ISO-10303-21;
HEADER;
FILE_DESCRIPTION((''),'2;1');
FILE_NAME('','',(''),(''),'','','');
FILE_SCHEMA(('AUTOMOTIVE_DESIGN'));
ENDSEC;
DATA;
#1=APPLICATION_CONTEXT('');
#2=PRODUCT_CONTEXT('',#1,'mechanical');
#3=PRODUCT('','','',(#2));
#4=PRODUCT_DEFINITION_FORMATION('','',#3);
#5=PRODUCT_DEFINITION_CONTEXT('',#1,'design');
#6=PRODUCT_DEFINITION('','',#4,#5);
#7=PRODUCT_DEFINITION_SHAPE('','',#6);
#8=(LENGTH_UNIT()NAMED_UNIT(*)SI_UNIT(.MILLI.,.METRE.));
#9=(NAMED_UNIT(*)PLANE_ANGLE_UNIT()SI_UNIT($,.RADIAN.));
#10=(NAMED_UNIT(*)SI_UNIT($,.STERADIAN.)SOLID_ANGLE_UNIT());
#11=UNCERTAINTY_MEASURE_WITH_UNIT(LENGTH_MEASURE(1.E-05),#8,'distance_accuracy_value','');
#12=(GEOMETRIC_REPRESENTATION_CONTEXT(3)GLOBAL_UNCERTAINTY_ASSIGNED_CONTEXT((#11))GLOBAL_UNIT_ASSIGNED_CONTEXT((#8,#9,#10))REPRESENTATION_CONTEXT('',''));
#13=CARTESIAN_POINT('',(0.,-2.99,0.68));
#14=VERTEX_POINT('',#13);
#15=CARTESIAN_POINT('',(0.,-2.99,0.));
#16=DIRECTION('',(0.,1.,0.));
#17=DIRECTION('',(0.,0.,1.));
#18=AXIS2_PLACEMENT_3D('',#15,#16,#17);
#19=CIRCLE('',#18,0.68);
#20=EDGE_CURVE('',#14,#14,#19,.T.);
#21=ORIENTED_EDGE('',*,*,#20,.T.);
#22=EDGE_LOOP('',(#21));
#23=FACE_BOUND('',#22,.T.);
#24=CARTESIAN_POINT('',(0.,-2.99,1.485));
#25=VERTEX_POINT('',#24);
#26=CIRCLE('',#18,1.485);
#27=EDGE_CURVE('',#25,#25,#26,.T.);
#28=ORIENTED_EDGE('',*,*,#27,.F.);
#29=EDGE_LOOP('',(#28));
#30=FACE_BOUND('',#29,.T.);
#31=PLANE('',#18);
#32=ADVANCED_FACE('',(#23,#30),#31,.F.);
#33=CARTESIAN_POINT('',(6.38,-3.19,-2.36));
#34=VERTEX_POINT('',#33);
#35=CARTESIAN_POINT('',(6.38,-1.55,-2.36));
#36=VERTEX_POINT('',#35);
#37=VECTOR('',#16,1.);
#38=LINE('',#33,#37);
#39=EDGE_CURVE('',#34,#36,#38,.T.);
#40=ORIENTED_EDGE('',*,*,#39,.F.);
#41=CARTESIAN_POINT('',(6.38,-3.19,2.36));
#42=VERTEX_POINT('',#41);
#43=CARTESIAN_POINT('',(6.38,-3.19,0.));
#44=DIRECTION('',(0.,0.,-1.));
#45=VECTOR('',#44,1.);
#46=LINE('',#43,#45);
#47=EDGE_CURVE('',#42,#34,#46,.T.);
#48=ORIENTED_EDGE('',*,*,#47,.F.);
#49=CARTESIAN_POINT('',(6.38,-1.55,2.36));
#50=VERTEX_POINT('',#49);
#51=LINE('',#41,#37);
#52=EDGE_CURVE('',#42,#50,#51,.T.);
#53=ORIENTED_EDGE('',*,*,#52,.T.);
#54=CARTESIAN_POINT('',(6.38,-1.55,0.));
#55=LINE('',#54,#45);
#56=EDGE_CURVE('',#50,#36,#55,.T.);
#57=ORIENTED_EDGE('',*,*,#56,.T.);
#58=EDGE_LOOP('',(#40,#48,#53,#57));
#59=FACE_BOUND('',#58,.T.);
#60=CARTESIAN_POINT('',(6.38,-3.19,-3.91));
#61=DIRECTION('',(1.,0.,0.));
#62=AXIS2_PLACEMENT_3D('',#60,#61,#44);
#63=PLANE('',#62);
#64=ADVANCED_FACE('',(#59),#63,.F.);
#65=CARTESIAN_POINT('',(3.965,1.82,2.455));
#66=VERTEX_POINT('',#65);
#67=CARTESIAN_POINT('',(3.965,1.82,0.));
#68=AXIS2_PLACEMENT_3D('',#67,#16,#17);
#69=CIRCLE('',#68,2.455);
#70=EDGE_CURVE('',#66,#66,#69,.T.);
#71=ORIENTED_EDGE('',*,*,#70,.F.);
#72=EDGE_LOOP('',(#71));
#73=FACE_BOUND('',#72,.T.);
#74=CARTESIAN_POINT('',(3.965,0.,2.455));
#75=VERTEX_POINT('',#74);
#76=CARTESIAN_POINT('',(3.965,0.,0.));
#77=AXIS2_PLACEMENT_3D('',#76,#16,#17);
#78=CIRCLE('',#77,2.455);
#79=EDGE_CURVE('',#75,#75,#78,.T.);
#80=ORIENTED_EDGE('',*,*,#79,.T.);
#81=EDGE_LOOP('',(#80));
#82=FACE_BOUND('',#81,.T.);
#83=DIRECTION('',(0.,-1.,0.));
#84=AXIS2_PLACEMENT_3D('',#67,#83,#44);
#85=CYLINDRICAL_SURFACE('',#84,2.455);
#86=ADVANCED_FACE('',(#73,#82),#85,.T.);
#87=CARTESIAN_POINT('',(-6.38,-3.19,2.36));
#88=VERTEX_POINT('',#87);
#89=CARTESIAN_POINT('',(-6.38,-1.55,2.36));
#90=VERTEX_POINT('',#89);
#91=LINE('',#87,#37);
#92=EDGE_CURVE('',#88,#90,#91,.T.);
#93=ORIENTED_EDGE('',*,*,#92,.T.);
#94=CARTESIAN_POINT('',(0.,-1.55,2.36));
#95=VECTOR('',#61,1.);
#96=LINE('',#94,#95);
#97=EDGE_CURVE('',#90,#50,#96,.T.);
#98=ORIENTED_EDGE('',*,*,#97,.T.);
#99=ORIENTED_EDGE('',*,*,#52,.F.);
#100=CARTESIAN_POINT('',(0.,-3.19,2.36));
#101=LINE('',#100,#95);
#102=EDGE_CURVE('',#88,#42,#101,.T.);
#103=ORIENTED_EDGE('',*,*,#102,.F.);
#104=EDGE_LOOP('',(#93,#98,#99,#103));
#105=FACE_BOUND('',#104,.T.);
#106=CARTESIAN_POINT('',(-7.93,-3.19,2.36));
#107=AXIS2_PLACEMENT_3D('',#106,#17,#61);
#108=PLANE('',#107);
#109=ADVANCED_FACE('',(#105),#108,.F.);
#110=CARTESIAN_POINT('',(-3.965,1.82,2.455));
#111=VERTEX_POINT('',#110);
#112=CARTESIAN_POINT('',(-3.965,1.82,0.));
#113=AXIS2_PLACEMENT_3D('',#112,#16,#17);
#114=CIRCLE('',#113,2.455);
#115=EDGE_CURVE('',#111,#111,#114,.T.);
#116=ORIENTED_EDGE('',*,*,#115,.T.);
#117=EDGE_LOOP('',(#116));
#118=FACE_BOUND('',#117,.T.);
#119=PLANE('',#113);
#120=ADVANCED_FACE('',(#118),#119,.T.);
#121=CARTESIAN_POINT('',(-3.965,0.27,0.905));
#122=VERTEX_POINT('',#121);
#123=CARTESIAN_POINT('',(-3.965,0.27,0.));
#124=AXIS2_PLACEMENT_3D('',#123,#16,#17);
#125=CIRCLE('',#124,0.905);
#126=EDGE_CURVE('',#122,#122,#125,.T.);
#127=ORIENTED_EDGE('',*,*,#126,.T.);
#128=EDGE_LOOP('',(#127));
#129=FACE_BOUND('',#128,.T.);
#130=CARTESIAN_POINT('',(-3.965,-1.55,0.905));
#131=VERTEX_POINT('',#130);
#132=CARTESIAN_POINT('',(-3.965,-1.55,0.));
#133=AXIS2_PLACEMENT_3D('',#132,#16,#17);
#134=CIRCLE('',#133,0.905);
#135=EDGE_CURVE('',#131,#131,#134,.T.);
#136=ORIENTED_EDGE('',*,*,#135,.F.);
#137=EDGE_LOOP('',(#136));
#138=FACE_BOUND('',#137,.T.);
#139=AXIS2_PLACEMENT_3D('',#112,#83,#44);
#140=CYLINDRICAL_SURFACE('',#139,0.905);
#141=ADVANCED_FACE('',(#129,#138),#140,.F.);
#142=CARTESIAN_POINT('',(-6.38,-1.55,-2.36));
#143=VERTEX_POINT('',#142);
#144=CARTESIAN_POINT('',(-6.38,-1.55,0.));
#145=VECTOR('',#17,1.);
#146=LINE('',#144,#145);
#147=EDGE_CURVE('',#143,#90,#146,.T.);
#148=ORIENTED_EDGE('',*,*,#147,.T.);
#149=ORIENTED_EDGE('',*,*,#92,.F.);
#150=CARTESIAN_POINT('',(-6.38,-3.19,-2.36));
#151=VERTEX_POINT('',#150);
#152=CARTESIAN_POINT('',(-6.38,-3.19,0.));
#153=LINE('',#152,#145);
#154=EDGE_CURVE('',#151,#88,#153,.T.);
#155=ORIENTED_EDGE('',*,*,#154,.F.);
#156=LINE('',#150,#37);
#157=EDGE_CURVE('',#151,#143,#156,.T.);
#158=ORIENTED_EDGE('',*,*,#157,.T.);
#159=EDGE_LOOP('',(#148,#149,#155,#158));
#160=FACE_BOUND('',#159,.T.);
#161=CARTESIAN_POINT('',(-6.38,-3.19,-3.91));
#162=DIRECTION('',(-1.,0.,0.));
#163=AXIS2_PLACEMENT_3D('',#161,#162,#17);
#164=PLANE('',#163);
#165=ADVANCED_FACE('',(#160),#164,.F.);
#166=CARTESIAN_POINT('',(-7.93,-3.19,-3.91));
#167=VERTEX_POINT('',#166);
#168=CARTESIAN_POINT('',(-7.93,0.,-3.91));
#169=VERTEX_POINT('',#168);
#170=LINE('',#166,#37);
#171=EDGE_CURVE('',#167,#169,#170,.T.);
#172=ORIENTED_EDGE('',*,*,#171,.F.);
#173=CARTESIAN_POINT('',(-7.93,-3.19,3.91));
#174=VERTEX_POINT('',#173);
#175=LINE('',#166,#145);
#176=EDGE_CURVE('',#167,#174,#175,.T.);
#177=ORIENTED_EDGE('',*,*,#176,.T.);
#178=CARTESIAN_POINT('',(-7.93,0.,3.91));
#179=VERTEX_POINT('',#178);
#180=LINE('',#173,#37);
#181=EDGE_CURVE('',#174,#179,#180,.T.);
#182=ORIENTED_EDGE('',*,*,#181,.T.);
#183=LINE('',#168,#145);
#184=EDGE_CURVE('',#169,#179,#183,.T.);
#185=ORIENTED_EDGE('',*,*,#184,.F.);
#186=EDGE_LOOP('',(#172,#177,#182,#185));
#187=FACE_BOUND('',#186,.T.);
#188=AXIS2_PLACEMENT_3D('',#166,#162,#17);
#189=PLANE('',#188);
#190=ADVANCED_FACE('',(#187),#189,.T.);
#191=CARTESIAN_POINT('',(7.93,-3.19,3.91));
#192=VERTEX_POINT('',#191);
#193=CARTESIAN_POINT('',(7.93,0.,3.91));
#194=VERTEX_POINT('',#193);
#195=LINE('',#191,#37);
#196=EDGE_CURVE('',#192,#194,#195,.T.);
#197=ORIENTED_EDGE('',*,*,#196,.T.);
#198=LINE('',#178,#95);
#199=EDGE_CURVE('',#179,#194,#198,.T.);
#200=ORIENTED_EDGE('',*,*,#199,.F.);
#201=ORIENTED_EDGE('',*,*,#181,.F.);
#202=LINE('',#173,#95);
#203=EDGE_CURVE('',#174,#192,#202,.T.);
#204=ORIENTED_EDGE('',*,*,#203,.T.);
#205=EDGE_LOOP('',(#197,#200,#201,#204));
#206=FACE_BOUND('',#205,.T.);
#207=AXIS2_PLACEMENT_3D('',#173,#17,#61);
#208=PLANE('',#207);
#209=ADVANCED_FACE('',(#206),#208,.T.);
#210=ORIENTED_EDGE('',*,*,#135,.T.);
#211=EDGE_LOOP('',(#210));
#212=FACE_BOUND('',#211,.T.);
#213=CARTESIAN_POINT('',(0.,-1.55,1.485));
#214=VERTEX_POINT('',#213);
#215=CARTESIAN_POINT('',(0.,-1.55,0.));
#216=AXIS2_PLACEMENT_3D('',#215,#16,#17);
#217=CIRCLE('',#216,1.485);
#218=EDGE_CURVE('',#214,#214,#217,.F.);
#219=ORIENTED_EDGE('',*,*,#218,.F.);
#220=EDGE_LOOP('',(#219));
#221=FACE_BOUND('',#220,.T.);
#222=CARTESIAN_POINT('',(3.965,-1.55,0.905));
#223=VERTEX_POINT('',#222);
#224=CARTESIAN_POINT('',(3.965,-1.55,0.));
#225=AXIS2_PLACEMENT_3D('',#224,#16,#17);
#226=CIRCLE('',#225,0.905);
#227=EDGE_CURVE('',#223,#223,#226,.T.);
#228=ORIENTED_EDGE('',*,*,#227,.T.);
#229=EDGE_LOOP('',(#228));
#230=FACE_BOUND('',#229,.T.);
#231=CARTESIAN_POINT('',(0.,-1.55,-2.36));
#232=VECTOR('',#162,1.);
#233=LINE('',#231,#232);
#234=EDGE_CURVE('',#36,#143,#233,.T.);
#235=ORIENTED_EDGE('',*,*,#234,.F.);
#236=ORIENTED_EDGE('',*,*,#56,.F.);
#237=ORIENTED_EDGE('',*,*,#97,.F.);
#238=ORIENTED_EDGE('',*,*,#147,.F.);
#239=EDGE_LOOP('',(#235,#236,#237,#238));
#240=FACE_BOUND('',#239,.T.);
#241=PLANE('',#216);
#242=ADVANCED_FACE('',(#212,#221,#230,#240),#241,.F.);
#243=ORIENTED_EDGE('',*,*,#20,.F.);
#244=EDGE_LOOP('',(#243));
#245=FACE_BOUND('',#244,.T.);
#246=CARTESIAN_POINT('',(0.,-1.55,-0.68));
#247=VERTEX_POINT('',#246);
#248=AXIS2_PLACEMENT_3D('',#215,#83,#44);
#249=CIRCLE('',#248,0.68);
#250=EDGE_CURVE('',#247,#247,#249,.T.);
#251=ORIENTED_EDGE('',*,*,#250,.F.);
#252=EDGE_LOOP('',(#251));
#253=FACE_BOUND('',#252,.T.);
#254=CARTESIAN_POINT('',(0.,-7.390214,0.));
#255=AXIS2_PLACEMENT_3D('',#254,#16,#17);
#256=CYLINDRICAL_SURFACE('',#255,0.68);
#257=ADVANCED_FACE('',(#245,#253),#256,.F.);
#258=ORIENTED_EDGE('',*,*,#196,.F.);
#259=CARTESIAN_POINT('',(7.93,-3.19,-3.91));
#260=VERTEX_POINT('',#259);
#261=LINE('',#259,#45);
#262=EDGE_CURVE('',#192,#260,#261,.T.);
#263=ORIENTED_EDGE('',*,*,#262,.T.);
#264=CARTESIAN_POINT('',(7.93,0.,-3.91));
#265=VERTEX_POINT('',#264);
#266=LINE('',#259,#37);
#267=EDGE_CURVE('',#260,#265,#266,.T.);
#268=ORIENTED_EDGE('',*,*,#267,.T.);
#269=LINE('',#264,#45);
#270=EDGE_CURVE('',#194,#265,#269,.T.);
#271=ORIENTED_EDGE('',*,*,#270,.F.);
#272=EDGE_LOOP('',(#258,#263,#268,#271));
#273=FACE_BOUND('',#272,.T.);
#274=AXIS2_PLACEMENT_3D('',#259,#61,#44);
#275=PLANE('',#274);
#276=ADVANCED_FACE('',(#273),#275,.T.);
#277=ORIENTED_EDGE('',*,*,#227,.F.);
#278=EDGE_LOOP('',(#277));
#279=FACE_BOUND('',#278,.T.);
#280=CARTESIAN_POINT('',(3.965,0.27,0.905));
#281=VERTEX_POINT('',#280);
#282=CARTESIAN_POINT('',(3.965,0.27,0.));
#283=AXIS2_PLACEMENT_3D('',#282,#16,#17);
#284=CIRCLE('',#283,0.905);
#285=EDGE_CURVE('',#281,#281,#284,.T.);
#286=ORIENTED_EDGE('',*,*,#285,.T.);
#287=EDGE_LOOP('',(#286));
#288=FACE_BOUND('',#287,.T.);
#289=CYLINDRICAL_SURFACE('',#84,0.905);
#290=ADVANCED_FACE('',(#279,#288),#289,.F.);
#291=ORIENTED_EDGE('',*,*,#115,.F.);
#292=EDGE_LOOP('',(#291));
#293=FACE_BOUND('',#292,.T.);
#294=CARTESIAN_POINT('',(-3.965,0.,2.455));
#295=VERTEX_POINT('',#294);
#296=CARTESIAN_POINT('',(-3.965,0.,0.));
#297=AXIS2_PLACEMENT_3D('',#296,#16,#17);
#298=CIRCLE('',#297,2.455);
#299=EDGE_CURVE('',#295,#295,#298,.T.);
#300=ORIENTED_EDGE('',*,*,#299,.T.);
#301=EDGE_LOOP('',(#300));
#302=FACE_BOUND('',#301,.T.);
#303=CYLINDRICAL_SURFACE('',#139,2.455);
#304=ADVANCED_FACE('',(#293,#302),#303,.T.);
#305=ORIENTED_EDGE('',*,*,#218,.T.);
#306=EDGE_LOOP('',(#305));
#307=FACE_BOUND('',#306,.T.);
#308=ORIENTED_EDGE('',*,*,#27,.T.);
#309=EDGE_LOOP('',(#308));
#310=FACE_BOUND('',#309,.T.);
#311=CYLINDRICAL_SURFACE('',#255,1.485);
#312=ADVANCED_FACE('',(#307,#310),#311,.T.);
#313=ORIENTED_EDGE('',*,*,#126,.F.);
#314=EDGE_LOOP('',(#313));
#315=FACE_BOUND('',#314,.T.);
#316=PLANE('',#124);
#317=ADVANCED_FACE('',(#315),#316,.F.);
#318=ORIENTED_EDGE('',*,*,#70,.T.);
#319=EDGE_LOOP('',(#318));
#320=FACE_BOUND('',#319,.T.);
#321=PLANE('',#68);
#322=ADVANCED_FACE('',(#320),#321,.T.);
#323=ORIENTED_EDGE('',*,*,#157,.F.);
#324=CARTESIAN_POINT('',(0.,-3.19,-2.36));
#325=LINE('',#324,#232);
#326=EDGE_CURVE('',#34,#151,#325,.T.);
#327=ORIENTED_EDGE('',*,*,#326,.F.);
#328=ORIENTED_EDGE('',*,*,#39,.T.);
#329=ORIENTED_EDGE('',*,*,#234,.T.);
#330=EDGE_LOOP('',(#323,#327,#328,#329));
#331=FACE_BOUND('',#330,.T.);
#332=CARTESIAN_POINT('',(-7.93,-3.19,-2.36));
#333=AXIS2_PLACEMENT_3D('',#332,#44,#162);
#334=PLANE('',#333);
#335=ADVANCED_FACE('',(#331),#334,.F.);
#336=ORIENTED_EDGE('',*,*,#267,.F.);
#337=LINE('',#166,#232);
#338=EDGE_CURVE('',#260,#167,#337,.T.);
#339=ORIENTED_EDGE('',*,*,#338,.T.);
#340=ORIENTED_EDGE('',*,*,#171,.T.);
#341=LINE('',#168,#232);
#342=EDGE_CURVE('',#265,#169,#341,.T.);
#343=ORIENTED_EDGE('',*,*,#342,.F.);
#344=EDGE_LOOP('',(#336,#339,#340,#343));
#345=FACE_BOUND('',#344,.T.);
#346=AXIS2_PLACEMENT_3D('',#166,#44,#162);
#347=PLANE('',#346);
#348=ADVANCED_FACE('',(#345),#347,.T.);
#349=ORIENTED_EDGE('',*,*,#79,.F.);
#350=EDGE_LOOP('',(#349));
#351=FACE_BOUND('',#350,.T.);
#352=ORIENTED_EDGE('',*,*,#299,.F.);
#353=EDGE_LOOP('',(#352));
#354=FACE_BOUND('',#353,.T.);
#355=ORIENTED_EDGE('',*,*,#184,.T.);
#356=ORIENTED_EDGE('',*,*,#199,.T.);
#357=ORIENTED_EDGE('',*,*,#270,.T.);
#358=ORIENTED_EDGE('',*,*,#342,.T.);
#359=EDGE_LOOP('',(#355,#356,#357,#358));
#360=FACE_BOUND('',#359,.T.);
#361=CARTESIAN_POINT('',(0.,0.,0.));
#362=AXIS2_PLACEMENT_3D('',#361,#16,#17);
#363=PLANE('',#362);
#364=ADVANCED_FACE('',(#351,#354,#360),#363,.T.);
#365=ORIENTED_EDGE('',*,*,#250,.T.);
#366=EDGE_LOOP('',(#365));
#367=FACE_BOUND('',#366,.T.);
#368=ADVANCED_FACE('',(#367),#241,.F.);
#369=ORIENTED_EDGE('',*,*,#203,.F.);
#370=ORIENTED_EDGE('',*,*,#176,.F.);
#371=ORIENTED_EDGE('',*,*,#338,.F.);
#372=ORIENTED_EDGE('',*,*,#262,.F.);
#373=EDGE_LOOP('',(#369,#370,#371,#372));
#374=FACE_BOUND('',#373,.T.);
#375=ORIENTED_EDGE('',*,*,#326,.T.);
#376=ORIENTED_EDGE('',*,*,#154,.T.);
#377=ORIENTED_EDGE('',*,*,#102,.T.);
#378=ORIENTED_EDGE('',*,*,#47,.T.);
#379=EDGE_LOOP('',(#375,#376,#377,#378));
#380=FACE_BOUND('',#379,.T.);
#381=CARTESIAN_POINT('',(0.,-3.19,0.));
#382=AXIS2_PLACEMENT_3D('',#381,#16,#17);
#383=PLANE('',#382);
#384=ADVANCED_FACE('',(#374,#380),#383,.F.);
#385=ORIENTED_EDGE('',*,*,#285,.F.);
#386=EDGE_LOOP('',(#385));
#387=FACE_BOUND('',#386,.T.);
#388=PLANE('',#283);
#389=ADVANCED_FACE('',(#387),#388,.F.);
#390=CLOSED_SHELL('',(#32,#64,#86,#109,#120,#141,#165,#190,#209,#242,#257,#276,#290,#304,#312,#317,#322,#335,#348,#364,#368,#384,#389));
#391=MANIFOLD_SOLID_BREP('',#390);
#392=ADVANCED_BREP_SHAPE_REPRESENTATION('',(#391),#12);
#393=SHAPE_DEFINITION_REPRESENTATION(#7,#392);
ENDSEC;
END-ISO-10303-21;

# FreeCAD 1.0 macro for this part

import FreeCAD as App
import Part
import Sketcher

V = App.Vector


def faces_at(feature, points):
    """Names of the faces that lie closest to the given points."""
    faces = feature.Shape.Faces
    near = lambda p: min(range(len(faces)), key=lambda i: faces[i].distToShape(Part.Vertex(*p))[0])
    return sorted({f"Face{near(p) + 1}" for p in points})

doc = App.newDocument("Part")
body = doc.addObject("PartDesign::Body", "Body")

# Sketch on XZ plane
sketch1 = body.newObject("Sketcher::SketchObject", "Sketch")
sketch1.AttachmentSupport = (doc.getObject("XZ_Plane"), [""])
sketch1.MapMode = "FlatFace"
sketch1.addGeometry([
    Part.LineSegment(V(-8, -4, 0), V(-8, 4, 0)),
    Part.LineSegment(V(-8, 4, 0), V(8, 4, 0)),
    Part.LineSegment(V(8, 4, 0), V(8, -4, 0)),
    Part.LineSegment(V(8, -4, 0), V(-8, -4, 0)),
], False)
sketch1.addConstraint([
    Sketcher.Constraint("Coincident", 0, 2, 1, 1),
    Sketcher.Constraint("Coincident", 1, 2, 2, 1),
    Sketcher.Constraint("Coincident", 2, 2, 3, 1),
    Sketcher.Constraint("Coincident", 3, 2, 0, 1),
    Sketcher.Constraint("Vertical", 0),
    Sketcher.Constraint("Horizontal", 1),
    Sketcher.Constraint("Vertical", 2),
    Sketcher.Constraint("Horizontal", 3),
    Sketcher.Constraint("Symmetric", 0, 2, 2, 2, -1, 1),
    Sketcher.Constraint("DistanceX", 1, 1, 1, 2, 15.86),
    Sketcher.Constraint("DistanceY", 0, 1, 0, 2, 7.82),
])
pad1 = body.newObject("PartDesign::Pad", "Pad")
pad1.Profile = sketch1
pad1.Length = 3.19

# Sketch on XZ plane
sketch2 = body.newObject("Sketcher::SketchObject", "Sketch001")
sketch2.AttachmentSupport = (doc.getObject("XZ_Plane"), [""])
sketch2.MapMode = "FlatFace"
sketch2.addGeometry([
    Part.Circle(V(4, 0, 0), V(0, 0, 1), 2.5),
    Part.Circle(V(-4, 0, 0), V(0, 0, 1), 2.5),
], False)
sketch2.addConstraint([
    Sketcher.Constraint("Equal", 0, 1),
    Sketcher.Constraint("Symmetric", 0, 3, 1, 3, -1, 1),
    Sketcher.Constraint("PointOnObject", 0, 3, -1),
    Sketcher.Constraint("Diameter", 0, 4.91),
    Sketcher.Constraint("DistanceX", 1, 3, 0, 3, 7.93),
])
pad2 = body.newObject("PartDesign::Pad", "Pad001")
pad2.Profile = sketch2
pad2.Length = 1.82
pad2.Reversed = True
doc.recompute()

thickness = body.newObject("PartDesign::Thickness", "Thickness")
thickness.Base = (pad2, faces_at(pad2, [(0, -3.19, 0)]))
thickness.Value = 1.55
thickness.Reversed = True
thickness.Join = "Intersection"

# Sketch on XZ plane
sketch3 = body.newObject("Sketcher::SketchObject", "Sketch002")
sketch3.AttachmentSupport = (doc.getObject("XZ_Plane"), [""])
sketch3.MapMode = "FlatFace"
sketch3.AttachmentOffset = App.Placement(V(0, 0, 1.55), App.Rotation())
sketch3.addGeometry([
    Part.Circle(V(0, 0, 0), V(0, 0, 1), 1.5),
    Part.Circle(V(0, 0, 0), V(0, 0, 1), 0.7),
], False)
sketch3.addConstraint([
    Sketcher.Constraint("Coincident", 0, 3, -1, 1),
    Sketcher.Constraint("Coincident", 1, 3, -1, 1),
    Sketcher.Constraint("Diameter", 0, 2.97),
    Sketcher.Constraint("Diameter", 1, 1.36),
])
pad3 = body.newObject("PartDesign::Pad", "Pad002")
pad3.Profile = sketch3
pad3.Length = 1.44

doc.recompute()
